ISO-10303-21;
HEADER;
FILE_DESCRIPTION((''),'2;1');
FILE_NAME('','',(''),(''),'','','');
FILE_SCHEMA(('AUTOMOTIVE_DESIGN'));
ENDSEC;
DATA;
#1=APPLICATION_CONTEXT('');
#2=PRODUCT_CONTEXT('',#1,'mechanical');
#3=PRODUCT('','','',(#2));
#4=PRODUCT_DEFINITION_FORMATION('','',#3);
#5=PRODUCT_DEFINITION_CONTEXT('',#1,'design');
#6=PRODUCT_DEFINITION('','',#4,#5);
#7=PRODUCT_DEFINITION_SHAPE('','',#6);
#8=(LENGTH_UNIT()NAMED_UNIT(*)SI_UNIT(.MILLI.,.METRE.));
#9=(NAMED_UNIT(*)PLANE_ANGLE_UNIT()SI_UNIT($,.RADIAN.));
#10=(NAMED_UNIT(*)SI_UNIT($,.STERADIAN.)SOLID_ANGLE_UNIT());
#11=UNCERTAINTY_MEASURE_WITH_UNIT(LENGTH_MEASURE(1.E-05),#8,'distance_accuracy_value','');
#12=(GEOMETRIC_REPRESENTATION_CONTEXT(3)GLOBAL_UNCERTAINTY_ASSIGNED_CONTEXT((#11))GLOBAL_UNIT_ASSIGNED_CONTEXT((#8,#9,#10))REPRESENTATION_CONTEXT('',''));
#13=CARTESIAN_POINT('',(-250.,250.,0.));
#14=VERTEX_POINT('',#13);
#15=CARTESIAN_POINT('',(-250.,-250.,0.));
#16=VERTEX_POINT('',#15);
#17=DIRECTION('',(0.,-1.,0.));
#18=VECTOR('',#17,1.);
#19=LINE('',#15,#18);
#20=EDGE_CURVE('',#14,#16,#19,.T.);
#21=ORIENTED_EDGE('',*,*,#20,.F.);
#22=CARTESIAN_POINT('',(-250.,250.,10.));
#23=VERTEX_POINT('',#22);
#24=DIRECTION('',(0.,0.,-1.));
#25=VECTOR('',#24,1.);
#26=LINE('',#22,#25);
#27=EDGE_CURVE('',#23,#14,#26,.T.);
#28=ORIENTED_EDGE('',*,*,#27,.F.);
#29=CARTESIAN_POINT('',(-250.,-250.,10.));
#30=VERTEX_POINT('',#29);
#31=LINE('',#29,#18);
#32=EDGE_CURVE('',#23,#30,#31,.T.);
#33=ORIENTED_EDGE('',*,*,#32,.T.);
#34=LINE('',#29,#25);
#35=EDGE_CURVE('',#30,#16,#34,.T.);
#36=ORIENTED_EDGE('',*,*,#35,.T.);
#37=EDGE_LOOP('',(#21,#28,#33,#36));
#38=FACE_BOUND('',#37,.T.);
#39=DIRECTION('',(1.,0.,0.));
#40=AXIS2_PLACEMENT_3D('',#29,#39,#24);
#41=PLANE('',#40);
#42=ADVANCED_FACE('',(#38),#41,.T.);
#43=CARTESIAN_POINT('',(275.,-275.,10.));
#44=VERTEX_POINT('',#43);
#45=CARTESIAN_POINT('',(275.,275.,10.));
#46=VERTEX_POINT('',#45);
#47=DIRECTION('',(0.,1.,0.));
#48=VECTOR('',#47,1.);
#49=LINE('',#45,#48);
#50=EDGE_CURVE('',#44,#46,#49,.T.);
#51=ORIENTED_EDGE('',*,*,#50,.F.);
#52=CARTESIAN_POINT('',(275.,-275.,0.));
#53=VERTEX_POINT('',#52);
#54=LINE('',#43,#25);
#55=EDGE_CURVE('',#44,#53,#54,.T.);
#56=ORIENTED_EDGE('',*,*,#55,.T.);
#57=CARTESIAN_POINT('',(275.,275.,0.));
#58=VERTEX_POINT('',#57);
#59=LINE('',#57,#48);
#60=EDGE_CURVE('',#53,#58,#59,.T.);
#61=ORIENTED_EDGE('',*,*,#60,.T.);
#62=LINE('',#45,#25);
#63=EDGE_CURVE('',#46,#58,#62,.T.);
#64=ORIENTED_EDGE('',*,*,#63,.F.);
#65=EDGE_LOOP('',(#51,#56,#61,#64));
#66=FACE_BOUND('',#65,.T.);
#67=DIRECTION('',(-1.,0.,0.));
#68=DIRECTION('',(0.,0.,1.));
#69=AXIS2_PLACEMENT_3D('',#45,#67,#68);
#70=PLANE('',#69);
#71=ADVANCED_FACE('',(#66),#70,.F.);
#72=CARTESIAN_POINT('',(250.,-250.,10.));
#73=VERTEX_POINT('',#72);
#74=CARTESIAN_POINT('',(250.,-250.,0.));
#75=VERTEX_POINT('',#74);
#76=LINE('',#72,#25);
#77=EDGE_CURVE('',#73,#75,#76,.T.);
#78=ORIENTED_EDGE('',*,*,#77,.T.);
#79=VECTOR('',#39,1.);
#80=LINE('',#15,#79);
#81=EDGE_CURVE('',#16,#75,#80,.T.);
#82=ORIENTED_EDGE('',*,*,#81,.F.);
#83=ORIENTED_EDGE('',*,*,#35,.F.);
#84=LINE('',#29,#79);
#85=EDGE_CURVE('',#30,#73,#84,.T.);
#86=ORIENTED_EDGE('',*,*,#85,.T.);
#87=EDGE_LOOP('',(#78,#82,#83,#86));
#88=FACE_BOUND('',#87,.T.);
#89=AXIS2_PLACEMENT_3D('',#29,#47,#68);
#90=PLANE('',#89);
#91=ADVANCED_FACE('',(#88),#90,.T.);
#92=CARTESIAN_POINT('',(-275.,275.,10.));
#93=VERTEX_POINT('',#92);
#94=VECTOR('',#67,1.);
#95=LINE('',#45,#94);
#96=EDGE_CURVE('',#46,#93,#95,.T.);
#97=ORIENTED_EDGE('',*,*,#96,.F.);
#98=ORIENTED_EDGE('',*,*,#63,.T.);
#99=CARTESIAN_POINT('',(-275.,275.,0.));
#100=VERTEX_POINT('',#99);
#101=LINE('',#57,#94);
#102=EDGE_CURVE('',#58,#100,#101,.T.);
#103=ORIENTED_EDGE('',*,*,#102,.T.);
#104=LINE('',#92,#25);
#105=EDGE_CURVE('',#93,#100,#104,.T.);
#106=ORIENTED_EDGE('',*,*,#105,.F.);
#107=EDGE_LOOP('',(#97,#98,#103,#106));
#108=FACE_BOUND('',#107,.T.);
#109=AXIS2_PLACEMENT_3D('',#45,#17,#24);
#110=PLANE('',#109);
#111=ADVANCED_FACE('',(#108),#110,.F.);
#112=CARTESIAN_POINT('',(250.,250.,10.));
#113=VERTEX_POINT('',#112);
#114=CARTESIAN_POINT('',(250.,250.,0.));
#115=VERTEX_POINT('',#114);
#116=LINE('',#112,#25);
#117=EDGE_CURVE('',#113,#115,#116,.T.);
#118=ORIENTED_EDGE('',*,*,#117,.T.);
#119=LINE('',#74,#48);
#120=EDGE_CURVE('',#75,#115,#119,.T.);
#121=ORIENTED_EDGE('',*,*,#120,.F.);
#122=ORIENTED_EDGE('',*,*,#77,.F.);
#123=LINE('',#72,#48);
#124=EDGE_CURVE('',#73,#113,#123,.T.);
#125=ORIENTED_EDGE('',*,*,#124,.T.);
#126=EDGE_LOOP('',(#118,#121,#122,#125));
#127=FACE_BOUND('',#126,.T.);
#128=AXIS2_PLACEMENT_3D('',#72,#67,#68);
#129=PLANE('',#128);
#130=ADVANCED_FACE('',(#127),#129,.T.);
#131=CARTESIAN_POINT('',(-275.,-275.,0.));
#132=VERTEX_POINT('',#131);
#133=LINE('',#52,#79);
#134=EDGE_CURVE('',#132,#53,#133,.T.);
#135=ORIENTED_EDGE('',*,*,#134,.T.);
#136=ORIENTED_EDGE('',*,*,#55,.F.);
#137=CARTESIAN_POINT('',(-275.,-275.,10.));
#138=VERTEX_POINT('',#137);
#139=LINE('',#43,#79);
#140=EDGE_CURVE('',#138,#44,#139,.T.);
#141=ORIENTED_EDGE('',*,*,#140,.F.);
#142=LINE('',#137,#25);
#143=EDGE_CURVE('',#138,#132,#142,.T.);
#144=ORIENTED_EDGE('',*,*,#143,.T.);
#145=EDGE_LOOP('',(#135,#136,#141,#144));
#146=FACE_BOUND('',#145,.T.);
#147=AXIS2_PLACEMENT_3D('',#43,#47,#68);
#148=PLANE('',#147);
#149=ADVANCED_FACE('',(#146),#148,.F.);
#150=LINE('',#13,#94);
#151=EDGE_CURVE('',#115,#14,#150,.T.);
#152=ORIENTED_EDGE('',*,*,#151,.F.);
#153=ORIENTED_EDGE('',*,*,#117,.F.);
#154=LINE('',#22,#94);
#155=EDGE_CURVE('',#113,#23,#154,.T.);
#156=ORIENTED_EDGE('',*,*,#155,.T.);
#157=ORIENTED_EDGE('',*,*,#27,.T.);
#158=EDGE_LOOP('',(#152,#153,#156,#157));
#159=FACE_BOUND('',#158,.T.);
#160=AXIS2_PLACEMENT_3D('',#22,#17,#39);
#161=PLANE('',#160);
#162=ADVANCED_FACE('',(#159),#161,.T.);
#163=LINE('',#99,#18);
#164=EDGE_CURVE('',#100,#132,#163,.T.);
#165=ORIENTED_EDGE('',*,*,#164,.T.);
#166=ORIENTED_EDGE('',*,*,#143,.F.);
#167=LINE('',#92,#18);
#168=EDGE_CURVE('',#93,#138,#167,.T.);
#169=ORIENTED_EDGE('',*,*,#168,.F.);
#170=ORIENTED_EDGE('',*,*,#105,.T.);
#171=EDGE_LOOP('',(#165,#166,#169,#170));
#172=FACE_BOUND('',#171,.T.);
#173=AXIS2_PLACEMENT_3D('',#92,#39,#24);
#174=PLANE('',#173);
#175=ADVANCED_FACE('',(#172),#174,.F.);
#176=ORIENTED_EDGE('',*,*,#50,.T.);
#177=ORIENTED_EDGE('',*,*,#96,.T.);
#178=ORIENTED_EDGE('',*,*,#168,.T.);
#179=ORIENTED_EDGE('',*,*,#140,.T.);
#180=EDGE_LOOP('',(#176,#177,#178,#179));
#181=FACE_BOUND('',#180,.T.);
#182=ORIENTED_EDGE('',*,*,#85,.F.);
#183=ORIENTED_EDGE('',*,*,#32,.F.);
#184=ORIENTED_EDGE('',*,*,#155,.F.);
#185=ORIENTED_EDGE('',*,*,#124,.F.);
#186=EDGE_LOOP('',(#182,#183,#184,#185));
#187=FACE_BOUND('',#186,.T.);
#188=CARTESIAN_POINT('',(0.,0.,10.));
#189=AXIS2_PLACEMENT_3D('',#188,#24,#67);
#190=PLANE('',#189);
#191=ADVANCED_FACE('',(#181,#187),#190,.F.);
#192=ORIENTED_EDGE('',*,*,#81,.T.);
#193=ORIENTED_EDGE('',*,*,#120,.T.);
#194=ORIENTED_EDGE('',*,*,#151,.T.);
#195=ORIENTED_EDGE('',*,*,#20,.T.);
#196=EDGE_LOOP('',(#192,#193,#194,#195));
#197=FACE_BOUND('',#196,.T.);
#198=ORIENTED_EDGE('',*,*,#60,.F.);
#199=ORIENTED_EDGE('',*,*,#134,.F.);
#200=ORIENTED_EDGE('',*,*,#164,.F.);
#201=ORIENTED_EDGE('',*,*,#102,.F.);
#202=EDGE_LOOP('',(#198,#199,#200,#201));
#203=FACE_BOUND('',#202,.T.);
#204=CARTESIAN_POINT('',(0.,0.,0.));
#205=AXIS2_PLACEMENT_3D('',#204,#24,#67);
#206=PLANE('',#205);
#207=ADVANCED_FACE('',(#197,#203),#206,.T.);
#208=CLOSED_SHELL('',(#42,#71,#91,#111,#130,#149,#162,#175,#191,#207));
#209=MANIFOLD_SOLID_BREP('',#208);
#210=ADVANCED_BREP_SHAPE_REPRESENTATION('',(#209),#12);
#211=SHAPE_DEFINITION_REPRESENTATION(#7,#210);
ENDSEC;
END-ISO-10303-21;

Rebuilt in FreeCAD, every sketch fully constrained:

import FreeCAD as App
import Part
import Sketcher

V = App.Vector


def add_polygon(sketch, points):
    """Adds a closed chain of lines whose ends are joined by coincident constraints."""
    first, n = sketch.GeometryCount, len(points)
    for a, b in zip(points, points[1:] + points[:1]):
        sketch.addGeometry(Part.LineSegment(App.Vector(*a, 0), App.Vector(*b, 0)), False)
    for i in range(n):
        sketch.addConstraint(Sketcher.Constraint("Coincident", first + i, 2, first + (i + 1) % n, 1))

doc = App.newDocument("Part")
params = doc.addObject("Spreadsheet::Sheet", "Params")
for row, (alias, value) in enumerate([
    ("sketch1_width", "550 mm"),
    ("sketch1_width2", "500 mm"),
    ("pad1_length", "10 mm"),
], start=1):
    params.set(f"A{row}", alias)
    params.set(f"B{row}", "=" + value)
    params.setAlias(f"B{row}", alias)

body = doc.addObject("PartDesign::Body", "Body")

# Sketch on XY plane
sketch1 = doc.addObject("Sketcher::SketchObject", "Sketch")
body.addObject(sketch1)
sketch1.AttachmentSupport = (doc.XY_Plane, [""])
sketch1.MapMode = "FlatFace"
add_polygon(sketch1, [(-275, 275), (-275, -275), (275, -275), (275, 275)])  # lines 0-3
add_polygon(sketch1, [(250, -250), (-250, -250), (-250, 250), (250, 250)])  # lines 4-7
sketch1.addConstraint(Sketcher.Constraint("Vertical", 0))
sketch1.addConstraint(Sketcher.Constraint("Horizontal", 1))
sketch1.addConstraint(Sketcher.Constraint("Vertical", 2))
sketch1.addConstraint(Sketcher.Constraint("Horizontal", 3))
sketch1.addConstraint(Sketcher.Constraint("Horizontal", 4))
sketch1.addConstraint(Sketcher.Constraint("Vertical", 5))
sketch1.addConstraint(Sketcher.Constraint("Horizontal", 6))
sketch1.addConstraint(Sketcher.Constraint("Vertical", 7))
sketch1.addConstraint(Sketcher.Constraint("Symmetric", 0, 2, 2, 2, -1, 1))
sketch1.addConstraint(Sketcher.Constraint("Symmetric", 4, 2, 6, 2, -1, 1))
sketch1.addConstraint(Sketcher.Constraint("Equal", 3, 0))
sketch1.addConstraint(Sketcher.Constraint("Equal", 6, 5))
sketch1.addConstraint(Sketcher.Constraint("DistanceX", 1, 1, 1, 2, 550.0))
sketch1.addConstraint(Sketcher.Constraint("DistanceX", 4, 2, 4, 1, 500.0))
sketch1.setExpression("Constraints[20]", "Params.sketch1_width")
sketch1.setExpression("Constraints[21]", "Params.sketch1_width2")
pad1 = doc.addObject("PartDesign::Pad", "Pad")
body.addObject(pad1)
pad1.Profile = sketch1
pad1.setExpression("Length", "Params.pad1_length")

doc.recompute()
